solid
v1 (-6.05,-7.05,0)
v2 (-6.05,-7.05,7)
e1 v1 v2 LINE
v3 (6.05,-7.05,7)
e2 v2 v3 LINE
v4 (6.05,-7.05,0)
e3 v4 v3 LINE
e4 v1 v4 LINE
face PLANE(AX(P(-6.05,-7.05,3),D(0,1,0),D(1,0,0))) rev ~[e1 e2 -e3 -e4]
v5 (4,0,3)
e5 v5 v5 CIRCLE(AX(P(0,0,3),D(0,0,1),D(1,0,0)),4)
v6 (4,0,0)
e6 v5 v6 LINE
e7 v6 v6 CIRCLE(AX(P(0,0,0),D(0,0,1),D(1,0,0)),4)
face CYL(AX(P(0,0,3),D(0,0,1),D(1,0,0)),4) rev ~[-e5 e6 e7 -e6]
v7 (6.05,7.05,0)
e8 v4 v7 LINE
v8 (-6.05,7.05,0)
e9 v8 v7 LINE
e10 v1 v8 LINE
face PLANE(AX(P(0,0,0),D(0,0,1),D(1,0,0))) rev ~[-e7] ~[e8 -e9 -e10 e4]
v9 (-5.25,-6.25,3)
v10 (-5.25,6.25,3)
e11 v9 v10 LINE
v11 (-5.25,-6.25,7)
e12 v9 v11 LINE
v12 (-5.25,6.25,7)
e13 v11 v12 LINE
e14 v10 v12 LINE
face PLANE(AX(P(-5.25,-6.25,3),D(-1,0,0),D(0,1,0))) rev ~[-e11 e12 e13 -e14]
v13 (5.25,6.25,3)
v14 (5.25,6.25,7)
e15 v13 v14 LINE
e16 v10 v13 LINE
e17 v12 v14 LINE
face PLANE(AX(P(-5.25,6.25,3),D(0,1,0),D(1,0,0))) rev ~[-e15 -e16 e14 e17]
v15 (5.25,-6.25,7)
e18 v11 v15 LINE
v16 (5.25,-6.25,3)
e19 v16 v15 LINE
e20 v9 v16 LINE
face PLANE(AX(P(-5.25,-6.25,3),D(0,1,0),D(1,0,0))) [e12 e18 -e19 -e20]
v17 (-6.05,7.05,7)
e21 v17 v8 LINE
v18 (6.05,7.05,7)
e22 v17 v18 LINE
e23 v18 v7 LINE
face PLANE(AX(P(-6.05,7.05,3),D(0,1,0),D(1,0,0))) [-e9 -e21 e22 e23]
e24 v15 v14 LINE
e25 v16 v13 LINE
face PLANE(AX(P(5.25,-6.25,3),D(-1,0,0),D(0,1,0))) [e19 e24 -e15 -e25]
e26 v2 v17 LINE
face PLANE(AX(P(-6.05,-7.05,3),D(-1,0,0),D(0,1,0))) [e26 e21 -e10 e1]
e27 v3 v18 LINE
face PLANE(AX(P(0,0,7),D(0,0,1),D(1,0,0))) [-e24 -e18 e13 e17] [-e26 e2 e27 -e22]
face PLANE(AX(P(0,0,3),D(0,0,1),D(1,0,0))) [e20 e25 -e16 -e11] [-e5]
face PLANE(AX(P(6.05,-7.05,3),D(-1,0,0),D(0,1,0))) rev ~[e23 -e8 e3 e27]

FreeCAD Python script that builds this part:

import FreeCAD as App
import Part
import Sketcher

V = App.Vector


def add_polygon(sketch, points):
    """Adds a closed chain of lines whose ends are joined by coincident constraints."""
    first, n = sketch.GeometryCount, len(points)
    for a, b in zip(points, points[1:] + points[:1]):
        sketch.addGeometry(Part.LineSegment(App.Vector(*a, 0), App.Vector(*b, 0)), False)
    for i in range(n):
        sketch.addConstraint(Sketcher.Constraint("Coincident", first + i, 2, first + (i + 1) % n, 1))

doc = App.newDocument("Part")
body = doc.addObject("PartDesign::Body", "Body")

# Sketch on XY plane
sketch1 = body.newObject("Sketcher::SketchObject", "Sketch")
sketch1.AttachmentSupport = (doc.getObject("XY_Plane"), [""])
sketch1.MapMode = "FlatFace"
add_polygon(sketch1, [(-6.05, 7.05), (-6.05, -7.05), (6.05, -7.05), (6.05, 7.05)])  # lines 0-3
sketch1.addConstraint(Sketcher.Constraint("Vertical", 0))
sketch1.addConstraint(Sketcher.Constraint("Horizontal", 1))
sketch1.addConstraint(Sketcher.Constraint("Vertical", 2))
sketch1.addConstraint(Sketcher.Constraint("Horizontal", 3))
sketch1.addConstraint(Sketcher.Constraint("Symmetric", 0, 2, 2, 2, -1, 1))
sketch1.addConstraint(Sketcher.Constraint("DistanceX", 1, 1, 1, 2, 12.1))
sketch1.addConstraint(Sketcher.Constraint("DistanceY", 0, 2, 0, 1, 14.1))
pad1 = body.newObject("PartDesign::Pad", "Pad")
pad1.Profile = sketch1
pad1.Length = 3

# Sketch on XY plane
sketch2 = body.newObject("Sketcher::SketchObject", "Sketch001")
sketch2.AttachmentSupport = (doc.getObject("XY_Plane"), [""])
sketch2.MapMode = "FlatFace"
sketch2.AttachmentOffset = App.Placement(V(0, 0, 3), App.Rotation())
add_polygon(sketch2, [(-6.05, 7.05), (-6.05, -7.05), (6.05, -7.05), (6.05, 7.05)])  # lines 0-3
add_polygon(sketch2, [(5.25, -6.25), (-5.25, -6.25), (-5.25, 6.25), (5.25, 6.25)])  # lines 4-7
sketch2.addConstraint(Sketcher.Constraint("Vertical", 0))
sketch2.addConstraint(Sketcher.Constraint("Horizontal", 1))
sketch2.addConstraint(Sketcher.Constraint("Vertical", 2))
sketch2.addConstraint(Sketcher.Constraint("Horizontal", 3))
sketch2.addConstraint(Sketcher.Constraint("Horizontal", 4))
sketch2.addConstraint(Sketcher.Constraint("Vertical", 5))
sketch2.addConstraint(Sketcher.Constraint("Horizontal", 6))
sketch2.addConstraint(Sketcher.Constraint("Vertical", 7))
sketch2.addConstraint(Sketcher.Constraint("Symmetric", 0, 2, 2, 2, -1, 1))
sketch2.addConstraint(Sketcher.Constraint("Symmetric", 4, 2, 6, 2, -1, 1))
sketch2.addConstraint(Sketcher.Constraint("DistanceX", 1, 1, 1, 2, 12.1))
sketch2.addConstraint(Sketcher.Constraint("DistanceX", 4, 2, 4, 1, 10.5))
sketch2.addConstraint(Sketcher.Constraint("DistanceY", 0, 2, 0, 1, 14.1))
sketch2.addConstraint(Sketcher.Constraint("DistanceY", 5, 1, 5, 2, 12.5))
pad2 = body.newObject("PartDesign::Pad", "Pad001")
pad2.Profile = sketch2
pad2.Length = 4

# Sketch on XY plane
sketch3 = body.newObject("Sketcher::SketchObject", "Sketch002")
sketch3.AttachmentSupport = (doc.getObject("XY_Plane"), [""])
sketch3.MapMode = "FlatFace"
sketch3.AttachmentOffset = App.Placement(V(0, 0, 3), App.Rotation())
sketch3.addGeometry(Part.Circle(V(0, 0, 0), V(0, 0, 1), 4), False)
sketch3.addConstraint(Sketcher.Constraint("Coincident", 0, 3, -1, 1))
sketch3.addConstraint(Sketcher.Constraint("Diameter", 0, 8.0))
pocket1 = body.newObject("PartDesign::Pocket", "Pocket")
pocket1.Profile = sketch3
pocket1.Length = 5

doc.recompute()
